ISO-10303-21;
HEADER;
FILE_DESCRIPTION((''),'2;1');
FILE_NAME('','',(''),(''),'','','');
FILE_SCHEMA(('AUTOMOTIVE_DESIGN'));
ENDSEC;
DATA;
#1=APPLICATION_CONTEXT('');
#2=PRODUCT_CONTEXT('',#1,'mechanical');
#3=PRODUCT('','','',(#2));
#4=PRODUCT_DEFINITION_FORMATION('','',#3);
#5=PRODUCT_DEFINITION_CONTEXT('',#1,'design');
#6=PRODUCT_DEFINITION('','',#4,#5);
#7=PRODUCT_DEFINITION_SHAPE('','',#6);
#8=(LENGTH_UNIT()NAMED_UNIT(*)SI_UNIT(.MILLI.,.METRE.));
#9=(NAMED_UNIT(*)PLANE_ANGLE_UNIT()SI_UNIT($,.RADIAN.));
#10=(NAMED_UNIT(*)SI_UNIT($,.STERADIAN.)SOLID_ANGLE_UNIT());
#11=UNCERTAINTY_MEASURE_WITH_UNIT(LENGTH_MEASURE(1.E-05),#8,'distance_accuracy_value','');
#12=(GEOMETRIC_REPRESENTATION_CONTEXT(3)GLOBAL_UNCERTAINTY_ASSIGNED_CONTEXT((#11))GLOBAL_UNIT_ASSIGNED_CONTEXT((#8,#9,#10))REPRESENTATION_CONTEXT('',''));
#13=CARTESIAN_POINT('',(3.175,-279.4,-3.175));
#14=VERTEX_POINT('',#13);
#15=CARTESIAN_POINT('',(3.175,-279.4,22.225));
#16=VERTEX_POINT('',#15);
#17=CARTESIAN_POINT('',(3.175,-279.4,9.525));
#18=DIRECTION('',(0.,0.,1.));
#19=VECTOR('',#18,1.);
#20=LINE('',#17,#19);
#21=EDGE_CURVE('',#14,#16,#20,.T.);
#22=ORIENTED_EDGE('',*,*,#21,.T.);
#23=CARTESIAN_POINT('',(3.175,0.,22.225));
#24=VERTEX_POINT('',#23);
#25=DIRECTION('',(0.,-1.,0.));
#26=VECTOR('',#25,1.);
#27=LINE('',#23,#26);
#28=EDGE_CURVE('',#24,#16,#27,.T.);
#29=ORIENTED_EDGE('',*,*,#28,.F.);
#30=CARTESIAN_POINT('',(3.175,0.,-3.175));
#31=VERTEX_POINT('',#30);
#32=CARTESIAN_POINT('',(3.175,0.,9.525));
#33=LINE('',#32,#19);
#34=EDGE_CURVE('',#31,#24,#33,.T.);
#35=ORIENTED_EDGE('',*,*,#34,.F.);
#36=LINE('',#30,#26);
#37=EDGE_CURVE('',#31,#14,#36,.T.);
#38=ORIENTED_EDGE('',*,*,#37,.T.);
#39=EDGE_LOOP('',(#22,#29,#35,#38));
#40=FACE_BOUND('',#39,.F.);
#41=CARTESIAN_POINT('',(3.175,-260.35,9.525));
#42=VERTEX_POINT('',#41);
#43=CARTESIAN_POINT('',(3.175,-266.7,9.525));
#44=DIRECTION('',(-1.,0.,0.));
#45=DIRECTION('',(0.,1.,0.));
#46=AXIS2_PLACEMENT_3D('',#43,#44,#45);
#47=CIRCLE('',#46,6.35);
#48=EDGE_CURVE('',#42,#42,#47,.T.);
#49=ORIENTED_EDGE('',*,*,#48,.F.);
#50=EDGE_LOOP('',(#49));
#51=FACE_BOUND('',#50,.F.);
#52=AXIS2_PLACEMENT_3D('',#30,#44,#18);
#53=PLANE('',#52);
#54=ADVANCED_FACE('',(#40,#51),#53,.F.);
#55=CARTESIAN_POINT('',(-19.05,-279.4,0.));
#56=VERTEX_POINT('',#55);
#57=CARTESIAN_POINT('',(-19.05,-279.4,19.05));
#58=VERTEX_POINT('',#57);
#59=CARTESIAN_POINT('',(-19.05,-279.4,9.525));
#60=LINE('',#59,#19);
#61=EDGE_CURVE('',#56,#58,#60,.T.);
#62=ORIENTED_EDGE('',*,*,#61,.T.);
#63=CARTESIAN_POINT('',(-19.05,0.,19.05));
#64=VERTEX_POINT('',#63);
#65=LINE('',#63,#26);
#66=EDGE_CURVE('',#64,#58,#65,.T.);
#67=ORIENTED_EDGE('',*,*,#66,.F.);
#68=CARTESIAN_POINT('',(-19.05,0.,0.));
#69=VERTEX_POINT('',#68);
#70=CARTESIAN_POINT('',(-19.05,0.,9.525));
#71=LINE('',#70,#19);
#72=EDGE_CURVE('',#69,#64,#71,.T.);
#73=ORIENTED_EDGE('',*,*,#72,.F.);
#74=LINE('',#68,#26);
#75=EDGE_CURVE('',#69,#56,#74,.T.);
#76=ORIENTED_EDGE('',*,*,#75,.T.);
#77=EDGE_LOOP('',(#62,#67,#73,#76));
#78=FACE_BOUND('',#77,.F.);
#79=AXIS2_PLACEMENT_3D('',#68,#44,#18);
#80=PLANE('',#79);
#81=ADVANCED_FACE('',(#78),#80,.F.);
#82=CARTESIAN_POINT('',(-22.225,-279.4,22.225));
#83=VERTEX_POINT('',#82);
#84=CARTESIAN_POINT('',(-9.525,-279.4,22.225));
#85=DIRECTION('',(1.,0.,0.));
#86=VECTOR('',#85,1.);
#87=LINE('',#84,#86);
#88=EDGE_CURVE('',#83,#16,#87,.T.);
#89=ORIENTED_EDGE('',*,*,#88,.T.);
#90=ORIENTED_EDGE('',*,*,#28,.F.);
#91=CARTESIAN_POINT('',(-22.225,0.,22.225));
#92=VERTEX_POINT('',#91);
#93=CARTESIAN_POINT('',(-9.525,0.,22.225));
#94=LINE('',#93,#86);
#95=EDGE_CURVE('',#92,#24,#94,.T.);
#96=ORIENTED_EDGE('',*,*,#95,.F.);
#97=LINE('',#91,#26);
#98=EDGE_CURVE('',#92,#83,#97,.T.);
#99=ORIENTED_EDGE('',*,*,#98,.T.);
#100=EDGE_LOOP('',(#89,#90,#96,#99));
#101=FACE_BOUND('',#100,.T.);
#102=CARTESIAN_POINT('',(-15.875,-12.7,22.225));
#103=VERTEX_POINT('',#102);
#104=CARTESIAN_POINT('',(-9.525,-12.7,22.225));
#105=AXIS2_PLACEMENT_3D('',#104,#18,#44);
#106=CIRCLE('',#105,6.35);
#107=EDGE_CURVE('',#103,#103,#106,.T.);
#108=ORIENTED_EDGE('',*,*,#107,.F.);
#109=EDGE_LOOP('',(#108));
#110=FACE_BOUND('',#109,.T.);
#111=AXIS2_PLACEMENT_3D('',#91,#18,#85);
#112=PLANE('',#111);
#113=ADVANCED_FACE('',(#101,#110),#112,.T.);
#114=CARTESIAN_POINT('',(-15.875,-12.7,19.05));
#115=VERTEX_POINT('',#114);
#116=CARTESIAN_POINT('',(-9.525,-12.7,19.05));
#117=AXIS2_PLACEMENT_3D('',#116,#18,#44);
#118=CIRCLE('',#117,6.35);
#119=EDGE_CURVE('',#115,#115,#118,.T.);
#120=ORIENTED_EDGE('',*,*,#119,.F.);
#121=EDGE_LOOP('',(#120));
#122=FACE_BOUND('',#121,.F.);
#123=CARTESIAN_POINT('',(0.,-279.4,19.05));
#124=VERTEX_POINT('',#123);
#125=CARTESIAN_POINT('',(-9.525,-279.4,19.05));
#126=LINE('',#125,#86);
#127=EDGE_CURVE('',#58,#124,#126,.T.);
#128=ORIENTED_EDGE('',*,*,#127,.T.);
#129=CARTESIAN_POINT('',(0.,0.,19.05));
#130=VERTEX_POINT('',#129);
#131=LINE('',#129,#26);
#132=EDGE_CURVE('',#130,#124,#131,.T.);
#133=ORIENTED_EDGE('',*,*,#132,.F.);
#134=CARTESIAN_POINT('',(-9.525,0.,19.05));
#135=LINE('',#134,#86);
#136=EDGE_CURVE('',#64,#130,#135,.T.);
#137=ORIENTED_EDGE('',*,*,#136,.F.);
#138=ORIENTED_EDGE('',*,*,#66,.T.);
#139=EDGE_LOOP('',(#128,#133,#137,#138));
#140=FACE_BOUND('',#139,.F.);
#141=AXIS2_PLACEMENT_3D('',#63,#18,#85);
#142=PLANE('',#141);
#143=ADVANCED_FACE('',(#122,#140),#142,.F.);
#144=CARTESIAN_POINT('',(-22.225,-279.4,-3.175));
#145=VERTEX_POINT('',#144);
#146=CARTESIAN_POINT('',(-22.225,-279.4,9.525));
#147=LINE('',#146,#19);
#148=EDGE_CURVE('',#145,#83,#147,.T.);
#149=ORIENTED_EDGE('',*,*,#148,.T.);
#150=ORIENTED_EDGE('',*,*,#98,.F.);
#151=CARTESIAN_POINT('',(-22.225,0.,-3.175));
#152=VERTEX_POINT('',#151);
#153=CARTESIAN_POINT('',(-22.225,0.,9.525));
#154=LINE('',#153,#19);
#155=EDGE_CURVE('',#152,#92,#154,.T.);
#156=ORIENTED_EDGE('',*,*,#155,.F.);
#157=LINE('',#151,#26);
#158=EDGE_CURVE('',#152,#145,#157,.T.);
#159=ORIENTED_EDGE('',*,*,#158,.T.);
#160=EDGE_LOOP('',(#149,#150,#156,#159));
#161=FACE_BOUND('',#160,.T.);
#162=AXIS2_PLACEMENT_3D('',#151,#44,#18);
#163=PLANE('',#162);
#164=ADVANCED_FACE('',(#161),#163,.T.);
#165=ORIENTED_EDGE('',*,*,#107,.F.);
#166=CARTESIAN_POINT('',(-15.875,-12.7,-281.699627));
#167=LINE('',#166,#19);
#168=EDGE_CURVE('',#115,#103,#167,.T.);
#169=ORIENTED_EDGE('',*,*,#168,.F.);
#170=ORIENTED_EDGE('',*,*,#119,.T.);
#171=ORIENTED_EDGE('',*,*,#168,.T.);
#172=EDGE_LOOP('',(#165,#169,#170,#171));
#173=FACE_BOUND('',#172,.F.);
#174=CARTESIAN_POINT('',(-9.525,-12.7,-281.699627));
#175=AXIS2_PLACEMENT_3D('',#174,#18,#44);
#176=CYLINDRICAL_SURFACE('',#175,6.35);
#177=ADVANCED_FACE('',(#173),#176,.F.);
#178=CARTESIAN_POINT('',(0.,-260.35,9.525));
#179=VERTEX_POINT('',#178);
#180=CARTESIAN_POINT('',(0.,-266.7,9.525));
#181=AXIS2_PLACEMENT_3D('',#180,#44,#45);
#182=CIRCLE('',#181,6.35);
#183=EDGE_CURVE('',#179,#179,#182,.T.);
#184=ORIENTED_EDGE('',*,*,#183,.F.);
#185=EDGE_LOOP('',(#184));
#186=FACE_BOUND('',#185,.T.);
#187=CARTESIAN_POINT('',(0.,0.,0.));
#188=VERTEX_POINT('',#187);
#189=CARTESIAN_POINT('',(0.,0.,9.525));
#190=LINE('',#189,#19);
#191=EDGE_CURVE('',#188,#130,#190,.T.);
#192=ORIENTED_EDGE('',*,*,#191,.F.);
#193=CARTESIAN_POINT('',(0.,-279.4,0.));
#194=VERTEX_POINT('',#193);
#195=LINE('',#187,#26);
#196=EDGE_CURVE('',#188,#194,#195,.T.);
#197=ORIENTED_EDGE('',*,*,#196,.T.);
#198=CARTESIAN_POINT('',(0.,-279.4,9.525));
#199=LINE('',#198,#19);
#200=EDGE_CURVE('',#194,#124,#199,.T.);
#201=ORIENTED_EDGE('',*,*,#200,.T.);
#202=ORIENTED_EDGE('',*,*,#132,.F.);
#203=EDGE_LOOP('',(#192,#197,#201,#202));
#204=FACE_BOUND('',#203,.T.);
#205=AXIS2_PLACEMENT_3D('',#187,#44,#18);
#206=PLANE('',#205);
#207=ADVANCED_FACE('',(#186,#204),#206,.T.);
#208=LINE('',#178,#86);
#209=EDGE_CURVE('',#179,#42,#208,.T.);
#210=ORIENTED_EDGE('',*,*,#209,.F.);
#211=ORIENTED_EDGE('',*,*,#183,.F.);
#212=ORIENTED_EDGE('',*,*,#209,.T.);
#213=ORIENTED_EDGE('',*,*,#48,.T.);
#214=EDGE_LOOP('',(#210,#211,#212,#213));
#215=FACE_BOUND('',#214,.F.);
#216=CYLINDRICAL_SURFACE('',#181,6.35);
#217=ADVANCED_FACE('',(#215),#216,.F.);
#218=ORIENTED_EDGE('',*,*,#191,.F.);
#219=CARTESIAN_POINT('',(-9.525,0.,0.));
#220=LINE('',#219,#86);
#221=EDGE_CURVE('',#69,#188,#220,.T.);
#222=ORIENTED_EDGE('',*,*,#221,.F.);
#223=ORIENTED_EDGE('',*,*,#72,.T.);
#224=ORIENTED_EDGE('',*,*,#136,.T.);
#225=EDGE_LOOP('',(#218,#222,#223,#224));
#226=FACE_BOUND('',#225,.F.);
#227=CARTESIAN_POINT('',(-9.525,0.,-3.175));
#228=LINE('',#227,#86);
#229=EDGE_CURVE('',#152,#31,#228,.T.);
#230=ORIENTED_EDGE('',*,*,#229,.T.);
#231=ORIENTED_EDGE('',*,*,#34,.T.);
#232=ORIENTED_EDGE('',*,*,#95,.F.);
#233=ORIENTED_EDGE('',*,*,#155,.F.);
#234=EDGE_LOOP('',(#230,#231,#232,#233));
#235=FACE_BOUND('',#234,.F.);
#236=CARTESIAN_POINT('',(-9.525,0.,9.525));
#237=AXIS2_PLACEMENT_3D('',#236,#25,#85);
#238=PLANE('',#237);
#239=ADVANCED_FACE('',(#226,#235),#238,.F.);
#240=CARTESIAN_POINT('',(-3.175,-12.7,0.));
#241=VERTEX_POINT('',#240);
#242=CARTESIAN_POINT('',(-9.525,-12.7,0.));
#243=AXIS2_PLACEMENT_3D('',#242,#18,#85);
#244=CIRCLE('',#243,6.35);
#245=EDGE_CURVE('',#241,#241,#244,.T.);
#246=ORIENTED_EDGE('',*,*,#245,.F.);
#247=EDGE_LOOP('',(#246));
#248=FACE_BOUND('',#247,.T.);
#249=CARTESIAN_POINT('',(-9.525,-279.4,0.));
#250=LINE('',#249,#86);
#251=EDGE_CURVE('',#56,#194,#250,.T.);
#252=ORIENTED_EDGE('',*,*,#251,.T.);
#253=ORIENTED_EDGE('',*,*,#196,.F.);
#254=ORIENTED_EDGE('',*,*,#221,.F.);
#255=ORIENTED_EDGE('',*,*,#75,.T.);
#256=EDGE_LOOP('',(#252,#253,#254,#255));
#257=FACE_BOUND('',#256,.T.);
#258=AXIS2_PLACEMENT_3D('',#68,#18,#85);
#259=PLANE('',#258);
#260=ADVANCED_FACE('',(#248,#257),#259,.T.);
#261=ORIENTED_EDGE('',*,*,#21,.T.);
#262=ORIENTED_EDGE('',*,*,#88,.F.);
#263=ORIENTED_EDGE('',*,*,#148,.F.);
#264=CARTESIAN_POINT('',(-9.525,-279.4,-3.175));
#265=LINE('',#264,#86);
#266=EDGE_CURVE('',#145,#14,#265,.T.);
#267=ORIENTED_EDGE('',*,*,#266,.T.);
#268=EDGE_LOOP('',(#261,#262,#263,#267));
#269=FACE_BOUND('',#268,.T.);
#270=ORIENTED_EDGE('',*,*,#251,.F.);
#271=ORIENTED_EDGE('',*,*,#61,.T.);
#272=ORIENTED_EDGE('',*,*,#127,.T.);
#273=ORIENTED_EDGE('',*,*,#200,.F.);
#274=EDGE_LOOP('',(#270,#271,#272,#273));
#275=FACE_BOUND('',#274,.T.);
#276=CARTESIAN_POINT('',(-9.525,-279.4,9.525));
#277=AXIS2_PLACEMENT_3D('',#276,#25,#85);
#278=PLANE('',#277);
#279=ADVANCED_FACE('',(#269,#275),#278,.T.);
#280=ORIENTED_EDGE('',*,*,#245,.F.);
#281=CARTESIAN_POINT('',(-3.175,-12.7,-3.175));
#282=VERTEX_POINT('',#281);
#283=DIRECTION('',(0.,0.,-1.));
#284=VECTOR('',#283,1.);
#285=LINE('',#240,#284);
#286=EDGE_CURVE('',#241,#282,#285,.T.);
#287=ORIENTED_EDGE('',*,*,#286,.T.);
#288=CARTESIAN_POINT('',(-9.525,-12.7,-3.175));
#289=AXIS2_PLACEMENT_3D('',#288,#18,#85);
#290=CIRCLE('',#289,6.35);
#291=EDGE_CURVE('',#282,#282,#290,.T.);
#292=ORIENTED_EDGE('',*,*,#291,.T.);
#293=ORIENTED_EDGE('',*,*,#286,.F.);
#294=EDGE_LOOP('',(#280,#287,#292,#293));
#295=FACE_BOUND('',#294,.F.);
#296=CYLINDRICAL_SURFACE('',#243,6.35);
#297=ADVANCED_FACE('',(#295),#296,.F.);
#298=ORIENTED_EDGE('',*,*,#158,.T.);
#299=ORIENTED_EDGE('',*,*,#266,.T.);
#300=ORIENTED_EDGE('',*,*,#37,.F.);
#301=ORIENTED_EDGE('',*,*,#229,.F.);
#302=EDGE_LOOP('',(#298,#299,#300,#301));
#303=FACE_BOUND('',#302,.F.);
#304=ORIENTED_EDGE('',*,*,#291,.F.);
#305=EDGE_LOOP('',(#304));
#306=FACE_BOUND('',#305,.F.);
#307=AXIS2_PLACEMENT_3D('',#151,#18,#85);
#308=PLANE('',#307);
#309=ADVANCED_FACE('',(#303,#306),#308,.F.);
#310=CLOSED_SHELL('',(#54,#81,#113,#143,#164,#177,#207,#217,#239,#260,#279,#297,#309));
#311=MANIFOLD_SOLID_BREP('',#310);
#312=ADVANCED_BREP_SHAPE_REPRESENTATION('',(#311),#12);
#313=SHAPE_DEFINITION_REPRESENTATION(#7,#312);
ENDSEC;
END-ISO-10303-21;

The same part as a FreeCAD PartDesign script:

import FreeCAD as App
import Part
import Sketcher
Q = App.Units.Quantity

doc = App.newDocument("Part")
body = doc.addObject("PartDesign::Body", "Body")

sketch1 = doc.addObject("Sketcher::SketchObject", "Sketch")
body.addObject(sketch1)
sketch1.AttachmentSupport = (doc.XZ_Plane, [""])
sketch1.MapMode = "FlatFace"
sketch1.addGeometry([
    Part.LineSegment(App.Vector(-22.225, 22.225, 0), App.Vector(-22.225, -3.175, 0)),
    Part.LineSegment(App.Vector(-22.225, -3.175, 0), App.Vector(3.175, -3.175, 0)),
    Part.LineSegment(App.Vector(3.175, -3.175, 0), App.Vector(3.175, 22.225, 0)),
    Part.LineSegment(App.Vector(3.175, 22.225, 0), App.Vector(-22.225, 22.225, 0)),
    Part.LineSegment(App.Vector(0, 0, 0), App.Vector(-19.05, 0, 0)),
    Part.LineSegment(App.Vector(-19.05, 0, 0), App.Vector(-19.05, 19.05, 0)),
    Part.LineSegment(App.Vector(-19.05, 19.05, 0), App.Vector(0, 19.05, 0)),
    Part.LineSegment(App.Vector(0, 19.05, 0), App.Vector(0, 0, 0)),
], False)
sketch1.addConstraint([
    Sketcher.Constraint("Coincident", 0, 2, 1, 1),
    Sketcher.Constraint("Coincident", 1, 2, 2, 1),
    Sketcher.Constraint("Coincident", 2, 2, 3, 1),
    Sketcher.Constraint("Coincident", 3, 2, 0, 1),
    Sketcher.Constraint("Coincident", 4, 2, 5, 1),
    Sketcher.Constraint("Coincident", 5, 2, 6, 1),
    Sketcher.Constraint("Coincident", 6, 2, 7, 1),
    Sketcher.Constraint("Coincident", 7, 2, 4, 1),
    Sketcher.Constraint("Vertical", 0),
    Sketcher.Constraint("Horizontal", 1),
    Sketcher.Constraint("Vertical", 2),
    Sketcher.Constraint("Horizontal", 3),
    Sketcher.Constraint("Horizontal", 4),
    Sketcher.Constraint("Vertical", 5),
    Sketcher.Constraint("Horizontal", 6),
    Sketcher.Constraint("Vertical", 7),
    Sketcher.Constraint("Coincident", 7, 2, -1, 1),
    Sketcher.Constraint("Equal", 3, 0),
    Sketcher.Constraint("Equal", 6, 5),
    Sketcher.Constraint("DistanceX", 1, 1, 1, 2, Q("1 in")),
    Sketcher.Constraint("DistanceX", 4, 2, 4, 1, Q("0.75 in")),
    Sketcher.Constraint("DistanceX", 0, 2, -1, 1, Q("0.875 in")),
    Sketcher.Constraint("DistanceY", 0, 2, -1, 1, Q("0.125 in")),
])
pad1 = doc.addObject("PartDesign::Pad", "Pad")
body.addObject(pad1)
pad1.Profile = sketch1
pad1.Length = Q("11 in")

sketch2 = doc.addObject("Sketcher::SketchObject", "Sketch001")
body.addObject(sketch2)
sketch2.AttachmentSupport = (doc.XY_Plane, [""])
sketch2.MapMode = "FlatFace"
sketch2.addGeometry(Part.Circle(App.Vector(-9.525, -12.7, 0), App.Vector(0, 0, 1), 6.35), False)
sketch2.addConstraint([
    Sketcher.Constraint("Diameter", 0, Q("0.5 in")),
    Sketcher.Constraint("DistanceY", 0, 3, -1, 1, Q("0.5 in")),
    Sketcher.Constraint("DistanceX", 0, 3, -1, 1, Q("0.375 in")),
])
pocket1 = doc.addObject("PartDesign::Pocket", "Pocket")
body.addObject(pocket1)
pocket1.Profile = sketch2
pocket1.Type = "ThroughAll"

sketch3 = doc.addObject("Sketcher::SketchObject", "Sketch002")
body.addObject(sketch3)
sketch3.AttachmentSupport = (doc.XY_Plane, [""])
sketch3.MapMode = "FlatFace"
sketch3.addGeometry(Part.Circle(App.Vector(-9.525, -12.7, 0), App.Vector(0, 0, 1), 6.35), False)
sketch3.addConstraint([
    Sketcher.Constraint("Diameter", 0, Q("0.5 in")),
    Sketcher.Constraint("DistanceY", 0, 3, -1, 1, Q("0.5 in")),
    Sketcher.Constraint("DistanceX", 0, 3, -1, 1, Q("0.375 in")),
])
doc.recompute()
hole = doc.addObject("PartDesign::Hole", "Hole")
body.addObject(hole)
hole.Profile = sketch3
hole.ThreadType = "None"
hole.Diameter = Q("0.5 in")
hole.DepthType = "ThroughAll"
hole.Reversed = True

sketch4 = doc.addObject("Sketcher::SketchObject", "Sketch003")
body.addObject(sketch4)
sketch4.AttachmentSupport = (doc.YZ_Plane, [""])
sketch4.MapMode = "FlatFace"
sketch4.addGeometry(Part.Circle(App.Vector(-266.7, 9.525, 0), App.Vector(0, 0, 1), 6.35), False)
sketch4.addConstraint([
    Sketcher.Constraint("Diameter", 0, Q("0.5 in")),
    Sketcher.Constraint("DistanceX", 0, 3, -1, 1, Q("10.5 in")),
    Sketcher.Constraint("DistanceY", -1, 1, 0, 3, Q("0.375 in")),
])
pocket2 = doc.addObject("PartDesign::Pocket", "Pocket001")
body.addObject(pocket2)
pocket2.Profile = sketch4
pocket2.Type = "ThroughAll"
pocket2.Reversed = True

doc.recompute()
